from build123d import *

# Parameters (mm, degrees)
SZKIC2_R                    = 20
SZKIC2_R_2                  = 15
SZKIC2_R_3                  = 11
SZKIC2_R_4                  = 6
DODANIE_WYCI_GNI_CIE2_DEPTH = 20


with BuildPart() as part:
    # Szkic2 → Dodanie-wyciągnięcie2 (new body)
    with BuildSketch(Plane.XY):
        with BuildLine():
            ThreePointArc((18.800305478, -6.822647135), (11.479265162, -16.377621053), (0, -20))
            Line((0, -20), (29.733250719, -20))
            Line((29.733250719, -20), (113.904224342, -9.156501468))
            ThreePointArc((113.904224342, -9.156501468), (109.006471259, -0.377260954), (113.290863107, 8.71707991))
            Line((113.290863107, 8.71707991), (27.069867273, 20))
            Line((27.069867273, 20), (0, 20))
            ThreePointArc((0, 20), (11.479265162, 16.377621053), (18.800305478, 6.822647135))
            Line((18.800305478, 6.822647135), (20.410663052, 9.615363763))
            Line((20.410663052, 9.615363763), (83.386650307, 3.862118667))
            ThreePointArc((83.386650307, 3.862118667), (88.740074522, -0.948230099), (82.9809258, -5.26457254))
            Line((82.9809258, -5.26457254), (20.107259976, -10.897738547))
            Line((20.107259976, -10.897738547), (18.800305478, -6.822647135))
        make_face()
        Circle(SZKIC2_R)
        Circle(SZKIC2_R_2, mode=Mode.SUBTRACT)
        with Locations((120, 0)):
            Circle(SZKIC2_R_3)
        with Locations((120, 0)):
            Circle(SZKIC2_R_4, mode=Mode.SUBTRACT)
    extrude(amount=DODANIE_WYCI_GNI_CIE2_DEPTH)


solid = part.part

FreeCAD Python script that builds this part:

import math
import FreeCAD as App
import Part
import Sketcher

V = App.Vector
Q = App.Units.Quantity

doc = App.newDocument("Part")
params = doc.addObject("Spreadsheet::Sheet", "Params")
for row, (alias, value) in enumerate([
    ("sketch1_diameter", "30 mm"),
    ("sketch1_diameter2", "12 mm"),
    ("sketch1_radius", "11 mm"),
    ("sketch1_radius2", "20 mm"),
    ("pad1_length", "20 mm"),
], start=1):
    params.set(f"A{row}", alias)
    params.set(f"B{row}", "=" + value)
    params.setAlias(f"B{row}", alias)

body = doc.addObject("PartDesign::Body", "Body")

# Sketch on XY plane
sketch1 = body.newObject("Sketcher::SketchObject", "Sketch")
sketch1.AttachmentSupport = (doc.getObject("XY_Plane"), [""])
sketch1.MapMode = "FlatFace"
sketch1.addGeometry(Part.LineSegment(V(0, -20, 0), V(29.7, -20, 0)), False)
sketch1.addGeometry(Part.LineSegment(V(29.7, -20, 0), V(113.9, -9.2, 0)), False)
sketch1.addGeometry(Part.ArcOfCircle(Part.Circle(V(120, 0, 0), V(0, 0, 1), 11), math.radians(-124), math.radians(128)), False)
sketch1.addGeometry(Part.LineSegment(V(113.3, 8.7, 0), V(27.1, 20, 0)), False)
sketch1.addGeometry(Part.LineSegment(V(27.1, 20, 0), V(0, 20, 0)), False)
sketch1.addGeometry(Part.ArcOfCircle(Part.Circle(V(0, 0, 0), V(0, 0, 1), 20), math.radians(90), math.radians(270)), False)
sketch1.addGeometry(Part.LineSegment(V(18.8, 6.8, 0), V(20.4, 9.6, 0)), False)
sketch1.addGeometry(Part.LineSegment(V(20.4, 9.6, 0), V(83.4, 3.9, 0)), False)
sketch1.addGeometry(Part.ArcOfCircle(Part.Circle(V(84.1, -0.7, 0), V(0, 0, 1), 4.7), math.radians(-104), math.radians(99)), False)
sketch1.addGeometry(Part.LineSegment(V(83, -5.3, 0), V(20.1, -10.9, 0)), False)
sketch1.addGeometry(Part.LineSegment(V(20.1, -10.9, 0), V(18.8, -6.8, 0)), False)
sketch1.addGeometry(Part.ArcOfCircle(Part.Circle(V(0, 0, 0), V(0, 0, 1), 20), math.radians(-20), math.radians(20)), False)
sketch1.addGeometry(Part.Circle(V(0, 0, 0), V(0, 0, 1), 15), False)
sketch1.addGeometry(Part.Circle(V(120, 0, 0), V(0, 0, 1), 6), False)
sketch1.addConstraint(Sketcher.Constraint("Coincident", 0, 2, 1, 1))
sketch1.addConstraint(Sketcher.Constraint("Coincident", 1, 2, 2, 1))
sketch1.addConstraint(Sketcher.Constraint("Coincident", 2, 2, 3, 1))
sketch1.addConstraint(Sketcher.Constraint("Coincident", 3, 2, 4, 1))
sketch1.addConstraint(Sketcher.Constraint("Tangent", 4, 2, 5, 1))
sketch1.addConstraint(Sketcher.Constraint("Tangent", 5, 2, 0, 1))
sketch1.addConstraint(Sketcher.Constraint("Coincident", 6, 2, 7, 1))
sketch1.addConstraint(Sketcher.Constraint("Coincident", 7, 2, 8, 2))
sketch1.addConstraint(Sketcher.Constraint("Coincident", 8, 1, 9, 1))
sketch1.addConstraint(Sketcher.Constraint("Coincident", 9, 2, 10, 1))
sketch1.addConstraint(Sketcher.Constraint("Coincident", 10, 2, 11, 1))
sketch1.addConstraint(Sketcher.Constraint("Coincident", 11, 2, 6, 1))
sketch1.addConstraint(Sketcher.Constraint("Horizontal", 0))
sketch1.addConstraint(Sketcher.Constraint("Horizontal", 4))
sketch1.addConstraint(Sketcher.Constraint("Coincident", 5, 3, -1, 1))
sketch1.addConstraint(Sketcher.Constraint("Coincident", 11, 3, -1, 1))
sketch1.addConstraint(Sketcher.Constraint("Coincident", 12, 3, -1, 1))
sketch1.addConstraint(Sketcher.Constraint("Coincident", 13, 3, 2, 3))
sketch1.addConstraint(Sketcher.Constraint("Equal", 5, 11))
sketch1.addConstraint(Sketcher.Constraint("PointOnObject", 2, 3, -1))
sketch1.addConstraint(Sketcher.Constraint("Vertical", 10, 2, 11, 2))
sketch1.addConstraint(Sketcher.Constraint("Diameter", 12, Q("30 mm")))
sketch1.addConstraint(Sketcher.Constraint("Diameter", 13, Q("12 mm")))
sketch1.addConstraint(Sketcher.Constraint("Radius", 2, Q("11 mm")))
sketch1.addConstraint(Sketcher.Constraint("Radius", 5, Q("20 mm")))
sketch1.addConstraint(Sketcher.Constraint("DistanceX", -1, 1, 2, 3, Q("120 mm")))
sketch1.addConstraint(Sketcher.Constraint("Radius", 8, Q("4.656662 mm")))
sketch1.addConstraint(Sketcher.Constraint("DistanceX", 0, 1, 0, 2, Q("29.733251 mm")))
sketch1.addConstraint(Sketcher.Constraint("DistanceY", 1, 2, -1, 1, Q("9.156501 mm")))
sketch1.addConstraint(Sketcher.Constraint("DistanceX", 8, 1, 1, 2, Q("30.923299 mm")))
sketch1.addConstraint(Sketcher.Constraint("Distance", 7, Q("63.238238 mm")))
sketch1.addConstraint(Sketcher.Constraint("DistanceX", 4, 2, 4, 1, Q("27.069867 mm")))
sketch1.addConstraint(Sketcher.Constraint("DistanceY", -1, 1, 2, 2, Q("8.71708 mm")))
sketch1.addConstraint(Sketcher.Constraint("DistanceX", -1, 1, 7, 2, Q("83.38665 mm")))
sketch1.addConstraint(Sketcher.Constraint("DistanceY", -1, 1, 7, 2, Q("3.862119 mm")))
sketch1.addConstraint(Sketcher.Constraint("DistanceX", -1, 1, 9, 2, Q("20.10726 mm")))
sketch1.addConstraint(Sketcher.Constraint("DistanceY", 9, 2, -1, 1, Q("10.897739 mm")))
sketch1.addConstraint(Sketcher.Constraint("DistanceX", 3, 2, 8, 3, Q("57.018139 mm")))
sketch1.addConstraint(Sketcher.Constraint("DistanceY", 9, 2, 10, 2, Q("4.075091 mm")))
sketch1.addConstraint(Sketcher.Constraint("DistanceY", 10, 2, 6, 2, Q("16.438011 mm")))
sketch1.setExpression("Constraints[21]", "Params.sketch1_diameter")
sketch1.setExpression("Constraints[22]", "Params.sketch1_diameter2")
sketch1.setExpression("Constraints[23]", "Params.sketch1_radius")
sketch1.setExpression("Constraints[24]", "Params.sketch1_radius2")
pad1 = body.newObject("PartDesign::Pad", "Pad")
pad1.Profile = sketch1
pad1.setExpression("Length", "Params.pad1_length")

doc.recompute()
